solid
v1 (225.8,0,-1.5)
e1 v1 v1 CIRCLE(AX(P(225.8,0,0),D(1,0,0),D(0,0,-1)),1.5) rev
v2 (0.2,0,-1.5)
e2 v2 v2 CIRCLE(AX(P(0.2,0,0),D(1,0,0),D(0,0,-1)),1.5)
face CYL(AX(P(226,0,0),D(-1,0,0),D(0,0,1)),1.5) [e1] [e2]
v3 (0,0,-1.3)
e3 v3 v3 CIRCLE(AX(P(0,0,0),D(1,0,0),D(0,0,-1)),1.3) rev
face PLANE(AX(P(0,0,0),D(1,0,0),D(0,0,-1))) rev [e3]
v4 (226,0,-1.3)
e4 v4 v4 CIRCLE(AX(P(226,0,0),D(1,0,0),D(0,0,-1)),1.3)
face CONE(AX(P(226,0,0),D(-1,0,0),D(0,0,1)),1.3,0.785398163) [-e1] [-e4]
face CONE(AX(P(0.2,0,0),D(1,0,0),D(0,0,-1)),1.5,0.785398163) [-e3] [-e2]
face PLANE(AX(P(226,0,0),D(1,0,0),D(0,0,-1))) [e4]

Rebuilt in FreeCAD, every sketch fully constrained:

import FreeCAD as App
import Part
import Sketcher


def edges_at(feature, points):
    """Names of the edges that pass closest to the given points."""
    edges = feature.Shape.Edges
    near = lambda p: min(range(len(edges)), key=lambda i: edges[i].distToShape(Part.Vertex(*p))[0])
    return sorted({f"Edge{near(p) + 1}" for p in points})

doc = App.newDocument("Part")
body = doc.addObject("PartDesign::Body", "Body")

sketch1 = doc.addObject("Sketcher::SketchObject", "Sketch")
body.addObject(sketch1)
sketch1.AttachmentSupport = (doc.YZ_Plane, [""])
sketch1.MapMode = "FlatFace"
sketch1.addGeometry(Part.Circle(App.Vector(0, 0, 0), App.Vector(0, 0, 1), 1.5), False)
sketch1.addConstraint(Sketcher.Constraint("Coincident", 0, 3, -1, 1))
sketch1.addConstraint(Sketcher.Constraint("Diameter", 0, 3.0))
pad1 = doc.addObject("PartDesign::Pad", "Pad")
body.addObject(pad1)
pad1.Profile = sketch1
pad1.Length = 226
doc.recompute()

chamfer = doc.addObject("PartDesign::Chamfer", "Chamfer")
body.addObject(chamfer)
chamfer.Base = (pad1, edges_at(pad1, [(0, 0, 1.5), (226, 0, 1.5)]))
chamfer.Size = 0.2

doc.recompute()
